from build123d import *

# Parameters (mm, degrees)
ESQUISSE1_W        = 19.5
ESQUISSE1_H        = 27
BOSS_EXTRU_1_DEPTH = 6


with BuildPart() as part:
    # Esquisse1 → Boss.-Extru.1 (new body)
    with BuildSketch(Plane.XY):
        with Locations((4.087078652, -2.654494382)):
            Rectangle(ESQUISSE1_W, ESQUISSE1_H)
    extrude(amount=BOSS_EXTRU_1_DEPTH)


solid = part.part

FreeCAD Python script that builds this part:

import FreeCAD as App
import Part
import Sketcher
from FreeCAD import Vector
Q = App.Units.Quantity


def add_polygon(sketch, points):
    """Adds a closed chain of lines whose ends are joined by coincident constraints."""
    first, n = sketch.GeometryCount, len(points)
    for a, b in zip(points, points[1:] + points[:1]):
        sketch.addGeometry(Part.LineSegment(App.Vector(*a, 0), App.Vector(*b, 0)), False)
    for i in range(n):
        sketch.addConstraint(Sketcher.Constraint("Coincident", first + i, 2, first + (i + 1) % n, 1))

doc = App.newDocument("Part")
body = doc.addObject("PartDesign::Body", "Body")

sketch1 = body.newObject("Sketcher::SketchObject", "Sketch")
sketch1.AttachmentSupport = (doc.getObject("XY_Plane"), [""])
sketch1.MapMode = "FlatFace"
add_polygon(sketch1, [(-6, 11), (-6, -16), (14, -16), (14, 11)])
sketch1.addConstraint(Sketcher.Constraint("Vertical", 0))
sketch1.addConstraint(Sketcher.Constraint("Horizontal", 1))
sketch1.addConstraint(Sketcher.Constraint("Vertical", 2))
sketch1.addConstraint(Sketcher.Constraint("Horizontal", 3))
sketch1.addConstraint(Sketcher.Constraint("DistanceY", 0, 2, 0, 1, Q("27 mm")))
sketch1.addConstraint(Sketcher.Constraint("DistanceX", 1, 1, 1, 2, Q("19.5 mm")))
sketch1.addConstraint(Sketcher.Constraint("DistanceX", 0, 2, -1, 1, Q("5.662921 mm")))
sketch1.addConstraint(Sketcher.Constraint("DistanceY", 0, 2, -1, 1, Q("16.154494 mm")))
pad1 = body.newObject("PartDesign::Pad", "Pad")
pad1.Profile = sketch1
pad1.Length = 6

doc.recompute()
